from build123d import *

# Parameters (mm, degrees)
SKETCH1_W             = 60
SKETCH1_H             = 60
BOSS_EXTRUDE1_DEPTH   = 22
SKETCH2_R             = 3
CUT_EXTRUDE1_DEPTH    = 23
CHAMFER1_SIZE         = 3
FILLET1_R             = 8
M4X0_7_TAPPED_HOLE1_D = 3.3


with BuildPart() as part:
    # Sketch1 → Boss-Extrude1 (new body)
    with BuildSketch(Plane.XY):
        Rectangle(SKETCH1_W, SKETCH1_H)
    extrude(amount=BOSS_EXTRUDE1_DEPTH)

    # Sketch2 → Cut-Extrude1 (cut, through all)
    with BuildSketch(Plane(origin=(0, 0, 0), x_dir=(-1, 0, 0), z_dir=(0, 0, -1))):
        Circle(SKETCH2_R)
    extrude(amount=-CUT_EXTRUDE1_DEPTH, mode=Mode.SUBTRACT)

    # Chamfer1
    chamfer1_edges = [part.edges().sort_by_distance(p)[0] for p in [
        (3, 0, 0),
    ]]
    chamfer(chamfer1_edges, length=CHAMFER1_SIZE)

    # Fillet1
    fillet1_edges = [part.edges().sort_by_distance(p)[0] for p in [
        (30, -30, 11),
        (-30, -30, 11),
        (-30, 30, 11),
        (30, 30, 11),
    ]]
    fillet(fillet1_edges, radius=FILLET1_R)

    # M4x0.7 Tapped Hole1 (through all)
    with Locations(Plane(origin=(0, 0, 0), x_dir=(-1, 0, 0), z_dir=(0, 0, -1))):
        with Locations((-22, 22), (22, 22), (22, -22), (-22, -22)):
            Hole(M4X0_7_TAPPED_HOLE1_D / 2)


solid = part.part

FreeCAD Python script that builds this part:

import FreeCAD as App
import Part
import Sketcher
Q = App.Units.Quantity


def edges_at(feature, points):
    """Names of the edges that pass closest to the given points."""
    edges = feature.Shape.Edges
    near = lambda p: min(range(len(edges)), key=lambda i: edges[i].distToShape(Part.Vertex(*p))[0])
    return sorted({f"Edge{near(p) + 1}" for p in points})

doc = App.newDocument("Part")
body = doc.addObject("PartDesign::Body", "Body")

# Sketch on XY plane
sketch1 = body.newObject("Sketcher::SketchObject", "Sketch")
sketch1.AttachmentSupport = (doc.getObject("XY_Plane"), [""])
sketch1.MapMode = "FlatFace"
sketch1.addGeometry([
    Part.LineSegment(App.Vector(-30, 30, 0), App.Vector(-30, -30, 0)),
    Part.LineSegment(App.Vector(-30, -30, 0), App.Vector(30, -30, 0)),
    Part.LineSegment(App.Vector(30, -30, 0), App.Vector(30, 30, 0)),
    Part.LineSegment(App.Vector(30, 30, 0), App.Vector(-30, 30, 0)),
], False)
sketch1.addConstraint([
    Sketcher.Constraint("Coincident", 0, 2, 1, 1),
    Sketcher.Constraint("Coincident", 1, 2, 2, 1),
    Sketcher.Constraint("Coincident", 2, 2, 3, 1),
    Sketcher.Constraint("Coincident", 3, 2, 0, 1),
    Sketcher.Constraint("Vertical", 0),
    Sketcher.Constraint("Horizontal", 1),
    Sketcher.Constraint("Vertical", 2),
    Sketcher.Constraint("Horizontal", 3),
    Sketcher.Constraint("Symmetric", 0, 2, 2, 2, -1, 1),
    Sketcher.Constraint("Equal", 3, 0),
    Sketcher.Constraint("DistanceX", 1, 1, 1, 2, Q("60 mm")),
])
pad1 = body.newObject("PartDesign::Pad", "Pad")
pad1.Profile = sketch1
pad1.Length = 22

# Sketch on XY plane
sketch2 = body.newObject("Sketcher::SketchObject", "Sketch001")
sketch2.AttachmentSupport = (doc.getObject("XY_Plane"), [""])
sketch2.MapMode = "FlatFace"
sketch2.addGeometry(Part.Circle(App.Vector(0, 0, 0), App.Vector(0, 0, 1), 3), False)
sketch2.addConstraint([
    Sketcher.Constraint("Coincident", 0, 3, -1, 1),
    Sketcher.Constraint("Diameter", 0, Q("6 mm")),
])
pocket1 = body.newObject("PartDesign::Pocket", "Pocket")
pocket1.Profile = sketch2
pocket1.Type = "ThroughAll"
pocket1.Reversed = True
doc.recompute()

chamfer = body.newObject("PartDesign::Chamfer", "Chamfer")
chamfer.Base = (pocket1, edges_at(pocket1, [(3, 0, 0)]))
chamfer.Size = 3
doc.recompute()

fillet = body.newObject("PartDesign::Fillet", "Fillet")
fillet.Base = (chamfer, edges_at(chamfer, [
    (30, -30, 11),
    (-30, -30, 11),
    (-30, 30, 11),
    (30, 30, 11),
]))
fillet.Radius = 8

# Sketch on XY plane
sketch3 = body.newObject("Sketcher::SketchObject", "Sketch002")
sketch3.AttachmentSupport = (doc.getObject("XY_Plane"), [""])
sketch3.MapMode = "FlatFace"
sketch3.addGeometry([
    Part.Circle(App.Vector(22, 22, 0), App.Vector(0, 0, 1), 1.6),
    Part.Circle(App.Vector(-22, 22, 0), App.Vector(0, 0, 1), 1.6),
    Part.Circle(App.Vector(-22, -22, 0), App.Vector(0, 0, 1), 1.6),
    Part.Circle(App.Vector(22, -22, 0), App.Vector(0, 0, 1), 1.6),
], False)
sketch3.addConstraint([
    Sketcher.Constraint("Equal", 0, 1),
    Sketcher.Constraint("Equal", 1, 2),
    Sketcher.Constraint("Equal", 2, 3),
    Sketcher.Constraint("Symmetric", 0, 3, 2, 3, -1, 1),
    Sketcher.Constraint("Symmetric", 1, 3, 3, 3, -1, 1),
    Sketcher.Constraint("Symmetric", 0, 3, 1, 3, -2),
    Sketcher.Constraint("Diameter", 0, Q("3.3 mm")),
    Sketcher.Constraint("DistanceX", -1, 1, 0, 3, Q("22 mm")),
    Sketcher.Constraint("DistanceY", -1, 1, 0, 3, Q("22 mm")),
])
doc.recompute()
hole = body.newObject("PartDesign::Hole", "Hole")
hole.Profile = sketch3
hole.ThreadType = "None"
hole.Diameter = 3.3
hole.DepthType = "ThroughAll"
hole.Reversed = True

doc.recompute()
